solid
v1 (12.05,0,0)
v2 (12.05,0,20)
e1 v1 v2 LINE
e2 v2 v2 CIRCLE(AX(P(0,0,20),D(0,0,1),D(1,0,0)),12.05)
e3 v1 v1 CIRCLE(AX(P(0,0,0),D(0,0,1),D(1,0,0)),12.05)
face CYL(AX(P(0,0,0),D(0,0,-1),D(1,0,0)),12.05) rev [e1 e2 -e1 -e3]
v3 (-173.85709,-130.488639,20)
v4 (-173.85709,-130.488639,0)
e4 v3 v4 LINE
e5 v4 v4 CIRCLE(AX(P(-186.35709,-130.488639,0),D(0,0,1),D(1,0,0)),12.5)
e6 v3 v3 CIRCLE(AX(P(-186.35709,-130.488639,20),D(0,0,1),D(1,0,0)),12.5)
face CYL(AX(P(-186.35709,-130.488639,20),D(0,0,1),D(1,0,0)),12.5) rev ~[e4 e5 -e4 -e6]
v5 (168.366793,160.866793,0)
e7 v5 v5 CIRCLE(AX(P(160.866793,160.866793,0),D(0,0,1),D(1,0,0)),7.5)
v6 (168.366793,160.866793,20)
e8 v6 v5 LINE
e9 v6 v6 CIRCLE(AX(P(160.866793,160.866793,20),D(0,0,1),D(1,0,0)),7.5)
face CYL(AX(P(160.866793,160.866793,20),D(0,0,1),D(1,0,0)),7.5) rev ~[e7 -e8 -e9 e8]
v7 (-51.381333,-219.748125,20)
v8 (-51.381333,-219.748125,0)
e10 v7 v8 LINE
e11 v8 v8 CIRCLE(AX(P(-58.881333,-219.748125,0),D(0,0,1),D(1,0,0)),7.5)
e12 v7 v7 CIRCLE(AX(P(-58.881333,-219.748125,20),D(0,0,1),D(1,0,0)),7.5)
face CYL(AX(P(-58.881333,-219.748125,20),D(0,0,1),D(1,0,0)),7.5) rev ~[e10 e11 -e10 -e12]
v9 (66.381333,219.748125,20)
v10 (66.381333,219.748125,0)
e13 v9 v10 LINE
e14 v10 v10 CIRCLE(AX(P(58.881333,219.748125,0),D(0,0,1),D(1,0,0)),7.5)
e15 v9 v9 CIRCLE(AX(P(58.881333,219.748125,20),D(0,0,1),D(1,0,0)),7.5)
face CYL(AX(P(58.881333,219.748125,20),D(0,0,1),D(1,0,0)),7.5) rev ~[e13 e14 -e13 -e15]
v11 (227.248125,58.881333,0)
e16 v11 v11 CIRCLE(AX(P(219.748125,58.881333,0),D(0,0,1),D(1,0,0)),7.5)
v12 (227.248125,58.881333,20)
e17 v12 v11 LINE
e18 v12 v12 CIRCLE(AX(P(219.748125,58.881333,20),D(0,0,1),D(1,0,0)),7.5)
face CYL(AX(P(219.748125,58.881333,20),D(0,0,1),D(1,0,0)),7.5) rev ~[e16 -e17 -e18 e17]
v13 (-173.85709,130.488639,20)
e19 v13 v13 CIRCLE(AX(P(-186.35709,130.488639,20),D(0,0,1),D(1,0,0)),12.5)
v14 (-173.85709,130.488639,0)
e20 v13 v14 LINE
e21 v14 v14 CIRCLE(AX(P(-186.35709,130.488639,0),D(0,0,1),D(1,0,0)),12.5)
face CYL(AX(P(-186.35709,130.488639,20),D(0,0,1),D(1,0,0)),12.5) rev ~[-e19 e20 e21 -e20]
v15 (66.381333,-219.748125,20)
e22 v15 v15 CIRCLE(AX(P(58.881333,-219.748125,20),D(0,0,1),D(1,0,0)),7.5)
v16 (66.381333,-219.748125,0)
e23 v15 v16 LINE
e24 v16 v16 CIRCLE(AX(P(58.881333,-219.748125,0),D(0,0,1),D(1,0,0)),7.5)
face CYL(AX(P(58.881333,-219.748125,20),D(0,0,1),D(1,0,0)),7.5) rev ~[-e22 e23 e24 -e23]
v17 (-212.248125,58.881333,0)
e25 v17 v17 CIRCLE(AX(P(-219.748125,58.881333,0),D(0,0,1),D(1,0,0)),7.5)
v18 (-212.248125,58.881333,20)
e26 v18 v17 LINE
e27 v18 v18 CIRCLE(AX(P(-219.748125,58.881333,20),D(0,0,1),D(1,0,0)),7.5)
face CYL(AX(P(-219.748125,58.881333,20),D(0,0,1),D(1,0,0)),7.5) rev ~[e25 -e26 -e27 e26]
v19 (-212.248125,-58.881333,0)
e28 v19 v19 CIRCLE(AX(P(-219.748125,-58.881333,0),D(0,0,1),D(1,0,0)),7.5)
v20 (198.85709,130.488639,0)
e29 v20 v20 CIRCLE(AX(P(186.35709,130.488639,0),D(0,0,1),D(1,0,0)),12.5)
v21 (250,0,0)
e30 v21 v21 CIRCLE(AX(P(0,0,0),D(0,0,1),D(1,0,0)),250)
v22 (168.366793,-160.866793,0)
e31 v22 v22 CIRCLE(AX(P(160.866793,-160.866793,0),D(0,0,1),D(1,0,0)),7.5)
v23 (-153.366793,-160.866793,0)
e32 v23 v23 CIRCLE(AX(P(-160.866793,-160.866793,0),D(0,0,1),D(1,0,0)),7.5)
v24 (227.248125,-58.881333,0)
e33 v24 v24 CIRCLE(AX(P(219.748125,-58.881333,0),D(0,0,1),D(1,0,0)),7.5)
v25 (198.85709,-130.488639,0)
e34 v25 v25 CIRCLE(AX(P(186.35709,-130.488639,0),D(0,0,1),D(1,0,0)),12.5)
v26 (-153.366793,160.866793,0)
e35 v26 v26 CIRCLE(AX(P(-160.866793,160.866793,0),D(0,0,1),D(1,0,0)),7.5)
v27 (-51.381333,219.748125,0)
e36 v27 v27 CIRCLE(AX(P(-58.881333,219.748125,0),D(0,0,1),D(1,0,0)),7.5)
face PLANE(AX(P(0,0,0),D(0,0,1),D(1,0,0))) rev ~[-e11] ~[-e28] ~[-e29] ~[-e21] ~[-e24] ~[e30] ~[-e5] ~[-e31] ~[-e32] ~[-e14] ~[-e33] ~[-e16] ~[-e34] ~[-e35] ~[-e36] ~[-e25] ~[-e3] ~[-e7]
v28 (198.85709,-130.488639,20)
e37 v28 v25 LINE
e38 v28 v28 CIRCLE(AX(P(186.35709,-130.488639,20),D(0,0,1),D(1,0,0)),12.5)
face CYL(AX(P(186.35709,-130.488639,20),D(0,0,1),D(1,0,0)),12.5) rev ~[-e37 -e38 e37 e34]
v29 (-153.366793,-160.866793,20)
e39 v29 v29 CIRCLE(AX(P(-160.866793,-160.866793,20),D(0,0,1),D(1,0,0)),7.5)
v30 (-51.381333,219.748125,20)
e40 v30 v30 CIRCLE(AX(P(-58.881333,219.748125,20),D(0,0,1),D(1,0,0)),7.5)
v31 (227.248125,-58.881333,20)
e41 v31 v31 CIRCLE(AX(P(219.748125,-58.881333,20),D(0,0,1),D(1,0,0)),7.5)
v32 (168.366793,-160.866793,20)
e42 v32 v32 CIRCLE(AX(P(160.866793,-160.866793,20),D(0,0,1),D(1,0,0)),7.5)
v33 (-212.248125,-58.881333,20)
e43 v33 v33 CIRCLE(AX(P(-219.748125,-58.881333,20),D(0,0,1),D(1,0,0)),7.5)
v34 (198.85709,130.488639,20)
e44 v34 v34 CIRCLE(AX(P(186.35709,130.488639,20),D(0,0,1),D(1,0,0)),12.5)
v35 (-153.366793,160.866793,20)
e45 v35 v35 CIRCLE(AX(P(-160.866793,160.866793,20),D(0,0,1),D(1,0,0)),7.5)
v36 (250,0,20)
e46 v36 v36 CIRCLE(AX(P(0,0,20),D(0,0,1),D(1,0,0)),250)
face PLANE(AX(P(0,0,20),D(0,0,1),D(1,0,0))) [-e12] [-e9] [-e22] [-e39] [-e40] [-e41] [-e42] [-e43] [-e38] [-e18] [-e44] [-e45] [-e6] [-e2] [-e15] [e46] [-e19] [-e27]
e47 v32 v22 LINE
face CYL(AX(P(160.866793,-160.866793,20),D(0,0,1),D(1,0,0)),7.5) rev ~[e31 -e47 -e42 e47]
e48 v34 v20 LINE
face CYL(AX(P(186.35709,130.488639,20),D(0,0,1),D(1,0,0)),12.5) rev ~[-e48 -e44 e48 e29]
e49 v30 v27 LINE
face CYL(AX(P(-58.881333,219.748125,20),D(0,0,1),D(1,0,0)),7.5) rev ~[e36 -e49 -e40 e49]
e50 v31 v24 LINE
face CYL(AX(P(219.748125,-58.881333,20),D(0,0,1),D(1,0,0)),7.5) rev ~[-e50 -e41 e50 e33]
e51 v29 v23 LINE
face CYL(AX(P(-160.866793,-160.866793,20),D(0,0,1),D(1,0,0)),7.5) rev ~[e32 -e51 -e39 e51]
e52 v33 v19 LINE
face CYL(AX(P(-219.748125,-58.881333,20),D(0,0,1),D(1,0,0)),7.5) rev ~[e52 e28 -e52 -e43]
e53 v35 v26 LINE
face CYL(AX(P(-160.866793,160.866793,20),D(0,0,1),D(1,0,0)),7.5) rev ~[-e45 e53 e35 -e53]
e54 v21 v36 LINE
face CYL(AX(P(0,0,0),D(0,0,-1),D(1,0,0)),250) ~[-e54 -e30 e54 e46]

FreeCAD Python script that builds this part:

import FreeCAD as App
import Part
import Sketcher

V = App.Vector
Q = App.Units.Quantity

doc = App.newDocument("Part")
body = doc.addObject("PartDesign::Body", "Body")

sketch1 = body.newObject("Sketcher::SketchObject", "Sketch")
sketch1.AttachmentSupport = (doc.getObject("XY_Plane"), [""])
sketch1.MapMode = "FlatFace"
sketch1.addGeometry(Part.Circle(V(0, 0, 0), V(0, 0, 1), 250), False)
sketch1.addGeometry(Part.Circle(V(0, 0, 0), V(0, 0, 1), 12.05), False)
sketch1.addConstraint(Sketcher.Constraint("Coincident", 0, 3, -1, 1))
sketch1.addConstraint(Sketcher.Constraint("Coincident", 1, 3, -1, 1))
sketch1.addConstraint(Sketcher.Constraint("Diameter", 0, Q("500 mm")))
sketch1.addConstraint(Sketcher.Constraint("Diameter", 1, Q("24.1 mm")))
pad1 = body.newObject("PartDesign::Pad", "Pad")
pad1.Profile = sketch1
pad1.Length = 20

sketch2 = body.newObject("Sketcher::SketchObject", "Sketch001")
sketch2.AttachmentSupport = (doc.getObject("XY_Plane"), [""])
sketch2.MapMode = "FlatFace"
sketch2.AttachmentOffset = App.Placement(V(0, 0, 20), App.Rotation())
sketch2.addGeometry(Part.Circle(V(219.748125, 58.881333, 0), V(0, 0, 1), 7.5), False)
sketch2.addGeometry(Part.Circle(V(160.866793, 160.866793, 0), V(0, 0, 1), 7.5), False)
sketch2.addGeometry(Part.Circle(V(58.881333, 219.748125, 0), V(0, 0, 1), 7.5), False)
sketch2.addGeometry(Part.Circle(V(-58.881333, 219.748125, 0), V(0, 0, 1), 7.5), False)
sketch2.addGeometry(Part.Circle(V(-160.866793, 160.866793, 0), V(0, 0, 1), 7.5), False)
sketch2.addGeometry(Part.Circle(V(-219.748125, 58.881333, 0), V(0, 0, 1), 7.5), False)
sketch2.addGeometry(Part.Circle(V(-219.748125, -58.881333, 0), V(0, 0, 1), 7.5), False)
sketch2.addGeometry(Part.Circle(V(-160.866793, -160.866793, 0), V(0, 0, 1), 7.5), False)
sketch2.addGeometry(Part.Circle(V(-58.881333, -219.748125, 0), V(0, 0, 1), 7.5), False)
sketch2.addGeometry(Part.Circle(V(58.881333, -219.748125, 0), V(0, 0, 1), 7.5), False)
sketch2.addGeometry(Part.Circle(V(160.866793, -160.866793, 0), V(0, 0, 1), 7.5), False)
sketch2.addGeometry(Part.Circle(V(219.748125, -58.881333, 0), V(0, 0, 1), 7.5), False)
sketch2.addConstraint(Sketcher.Constraint("Equal", 0, 1))
sketch2.addConstraint(Sketcher.Constraint("Equal", 1, 2))
sketch2.addConstraint(Sketcher.Constraint("Equal", 2, 3))
sketch2.addConstraint(Sketcher.Constraint("Equal", 3, 4))
sketch2.addConstraint(Sketcher.Constraint("Equal", 4, 5))
sketch2.addConstraint(Sketcher.Constraint("Equal", 5, 6))
sketch2.addConstraint(Sketcher.Constraint("Equal", 6, 7))
sketch2.addConstraint(Sketcher.Constraint("Equal", 7, 8))
sketch2.addConstraint(Sketcher.Constraint("Equal", 8, 9))
sketch2.addConstraint(Sketcher.Constraint("Equal", 9, 10))
sketch2.addConstraint(Sketcher.Constraint("Equal", 10, 11))
sketch2.addConstraint(Sketcher.Constraint("Symmetric", 0, 3, 6, 3, -1, 1))
sketch2.addConstraint(Sketcher.Constraint("Symmetric", 1, 3, 7, 3, -1, 1))
sketch2.addConstraint(Sketcher.Constraint("Symmetric", 2, 3, 8, 3, -1, 1))
sketch2.addConstraint(Sketcher.Constraint("Symmetric", 3, 3, 9, 3, -1, 1))
sketch2.addConstraint(Sketcher.Constraint("Symmetric", 4, 3, 10, 3, -1, 1))
sketch2.addConstraint(Sketcher.Constraint("Symmetric", 5, 3, 11, 3, -1, 1))
sketch2.addConstraint(Sketcher.Constraint("Symmetric", 2, 3, 3, 3, -2))
sketch2.addConstraint(Sketcher.Constraint("Symmetric", 1, 3, 4, 3, -2))
sketch2.addConstraint(Sketcher.Constraint("Symmetric", 0, 3, 5, 3, -2))
sketch2.addConstraint(Sketcher.Constraint("Diameter", 0, Q("15 mm")))
sketch2.addConstraint(Sketcher.Constraint("DistanceX", 1, 3, 0, 3, Q("58.881332 mm")))
sketch2.addConstraint(Sketcher.Constraint("DistanceY", 0, 3, 1, 3, Q("101.98546 mm")))
sketch2.addConstraint(Sketcher.Constraint("DistanceX", 2, 3, 1, 3, Q("101.98546 mm")))
sketch2.addConstraint(Sketcher.Constraint("DistanceY", 1, 3, 2, 3, Q("58.881332 mm")))
sketch2.addConstraint(Sketcher.Constraint("DistanceX", 3, 3, 0, 3, Q("278.629458 mm")))
sketch2.addConstraint(Sketcher.Constraint("DistanceY", 6, 3, 3, 3, Q("278.629458 mm")))
pocket1 = body.newObject("PartDesign::Pocket", "Pocket")
pocket1.Profile = sketch2
pocket1.Type = "ThroughAll"

sketch3 = body.newObject("Sketcher::SketchObject", "Sketch002")
sketch3.AttachmentSupport = (doc.getObject("XY_Plane"), [""])
sketch3.MapMode = "FlatFace"
sketch3.AttachmentOffset = App.Placement(V(0, 0, 20), App.Rotation())
sketch3.addGeometry(Part.Circle(V(186.35709, 130.488639, 0), V(0, 0, 1), 12.5), False)
sketch3.addGeometry(Part.Circle(V(-186.35709, 130.488639, 0), V(0, 0, 1), 12.5), False)
sketch3.addGeometry(Part.Circle(V(-186.35709, -130.488639, 0), V(0, 0, 1), 12.5), False)
sketch3.addGeometry(Part.Circle(V(186.35709, -130.488639, 0), V(0, 0, 1), 12.5), False)
sketch3.addConstraint(Sketcher.Constraint("Equal", 0, 1))
sketch3.addConstraint(Sketcher.Constraint("Equal", 1, 2))
sketch3.addConstraint(Sketcher.Constraint("Equal", 2, 3))
sketch3.addConstraint(Sketcher.Constraint("Symmetric", 0, 3, 2, 3, -1, 1))
sketch3.addConstraint(Sketcher.Constraint("Symmetric", 1, 3, 3, 3, -1, 1))
sketch3.addConstraint(Sketcher.Constraint("Symmetric", 0, 3, 1, 3, -2))
sketch3.addConstraint(Sketcher.Constraint("Diameter", 0, Q("25 mm")))
sketch3.addConstraint(Sketcher.Constraint("DistanceX", -1, 1, 0, 3, Q("186.35709 mm")))
sketch3.addConstraint(Sketcher.Constraint("DistanceY", -1, 1, 0, 3, Q("130.488639 mm")))
pocket2 = body.newObject("PartDesign::Pocket", "Pocket001")
pocket2.Profile = sketch3
pocket2.Length = 20

doc.recompute()
